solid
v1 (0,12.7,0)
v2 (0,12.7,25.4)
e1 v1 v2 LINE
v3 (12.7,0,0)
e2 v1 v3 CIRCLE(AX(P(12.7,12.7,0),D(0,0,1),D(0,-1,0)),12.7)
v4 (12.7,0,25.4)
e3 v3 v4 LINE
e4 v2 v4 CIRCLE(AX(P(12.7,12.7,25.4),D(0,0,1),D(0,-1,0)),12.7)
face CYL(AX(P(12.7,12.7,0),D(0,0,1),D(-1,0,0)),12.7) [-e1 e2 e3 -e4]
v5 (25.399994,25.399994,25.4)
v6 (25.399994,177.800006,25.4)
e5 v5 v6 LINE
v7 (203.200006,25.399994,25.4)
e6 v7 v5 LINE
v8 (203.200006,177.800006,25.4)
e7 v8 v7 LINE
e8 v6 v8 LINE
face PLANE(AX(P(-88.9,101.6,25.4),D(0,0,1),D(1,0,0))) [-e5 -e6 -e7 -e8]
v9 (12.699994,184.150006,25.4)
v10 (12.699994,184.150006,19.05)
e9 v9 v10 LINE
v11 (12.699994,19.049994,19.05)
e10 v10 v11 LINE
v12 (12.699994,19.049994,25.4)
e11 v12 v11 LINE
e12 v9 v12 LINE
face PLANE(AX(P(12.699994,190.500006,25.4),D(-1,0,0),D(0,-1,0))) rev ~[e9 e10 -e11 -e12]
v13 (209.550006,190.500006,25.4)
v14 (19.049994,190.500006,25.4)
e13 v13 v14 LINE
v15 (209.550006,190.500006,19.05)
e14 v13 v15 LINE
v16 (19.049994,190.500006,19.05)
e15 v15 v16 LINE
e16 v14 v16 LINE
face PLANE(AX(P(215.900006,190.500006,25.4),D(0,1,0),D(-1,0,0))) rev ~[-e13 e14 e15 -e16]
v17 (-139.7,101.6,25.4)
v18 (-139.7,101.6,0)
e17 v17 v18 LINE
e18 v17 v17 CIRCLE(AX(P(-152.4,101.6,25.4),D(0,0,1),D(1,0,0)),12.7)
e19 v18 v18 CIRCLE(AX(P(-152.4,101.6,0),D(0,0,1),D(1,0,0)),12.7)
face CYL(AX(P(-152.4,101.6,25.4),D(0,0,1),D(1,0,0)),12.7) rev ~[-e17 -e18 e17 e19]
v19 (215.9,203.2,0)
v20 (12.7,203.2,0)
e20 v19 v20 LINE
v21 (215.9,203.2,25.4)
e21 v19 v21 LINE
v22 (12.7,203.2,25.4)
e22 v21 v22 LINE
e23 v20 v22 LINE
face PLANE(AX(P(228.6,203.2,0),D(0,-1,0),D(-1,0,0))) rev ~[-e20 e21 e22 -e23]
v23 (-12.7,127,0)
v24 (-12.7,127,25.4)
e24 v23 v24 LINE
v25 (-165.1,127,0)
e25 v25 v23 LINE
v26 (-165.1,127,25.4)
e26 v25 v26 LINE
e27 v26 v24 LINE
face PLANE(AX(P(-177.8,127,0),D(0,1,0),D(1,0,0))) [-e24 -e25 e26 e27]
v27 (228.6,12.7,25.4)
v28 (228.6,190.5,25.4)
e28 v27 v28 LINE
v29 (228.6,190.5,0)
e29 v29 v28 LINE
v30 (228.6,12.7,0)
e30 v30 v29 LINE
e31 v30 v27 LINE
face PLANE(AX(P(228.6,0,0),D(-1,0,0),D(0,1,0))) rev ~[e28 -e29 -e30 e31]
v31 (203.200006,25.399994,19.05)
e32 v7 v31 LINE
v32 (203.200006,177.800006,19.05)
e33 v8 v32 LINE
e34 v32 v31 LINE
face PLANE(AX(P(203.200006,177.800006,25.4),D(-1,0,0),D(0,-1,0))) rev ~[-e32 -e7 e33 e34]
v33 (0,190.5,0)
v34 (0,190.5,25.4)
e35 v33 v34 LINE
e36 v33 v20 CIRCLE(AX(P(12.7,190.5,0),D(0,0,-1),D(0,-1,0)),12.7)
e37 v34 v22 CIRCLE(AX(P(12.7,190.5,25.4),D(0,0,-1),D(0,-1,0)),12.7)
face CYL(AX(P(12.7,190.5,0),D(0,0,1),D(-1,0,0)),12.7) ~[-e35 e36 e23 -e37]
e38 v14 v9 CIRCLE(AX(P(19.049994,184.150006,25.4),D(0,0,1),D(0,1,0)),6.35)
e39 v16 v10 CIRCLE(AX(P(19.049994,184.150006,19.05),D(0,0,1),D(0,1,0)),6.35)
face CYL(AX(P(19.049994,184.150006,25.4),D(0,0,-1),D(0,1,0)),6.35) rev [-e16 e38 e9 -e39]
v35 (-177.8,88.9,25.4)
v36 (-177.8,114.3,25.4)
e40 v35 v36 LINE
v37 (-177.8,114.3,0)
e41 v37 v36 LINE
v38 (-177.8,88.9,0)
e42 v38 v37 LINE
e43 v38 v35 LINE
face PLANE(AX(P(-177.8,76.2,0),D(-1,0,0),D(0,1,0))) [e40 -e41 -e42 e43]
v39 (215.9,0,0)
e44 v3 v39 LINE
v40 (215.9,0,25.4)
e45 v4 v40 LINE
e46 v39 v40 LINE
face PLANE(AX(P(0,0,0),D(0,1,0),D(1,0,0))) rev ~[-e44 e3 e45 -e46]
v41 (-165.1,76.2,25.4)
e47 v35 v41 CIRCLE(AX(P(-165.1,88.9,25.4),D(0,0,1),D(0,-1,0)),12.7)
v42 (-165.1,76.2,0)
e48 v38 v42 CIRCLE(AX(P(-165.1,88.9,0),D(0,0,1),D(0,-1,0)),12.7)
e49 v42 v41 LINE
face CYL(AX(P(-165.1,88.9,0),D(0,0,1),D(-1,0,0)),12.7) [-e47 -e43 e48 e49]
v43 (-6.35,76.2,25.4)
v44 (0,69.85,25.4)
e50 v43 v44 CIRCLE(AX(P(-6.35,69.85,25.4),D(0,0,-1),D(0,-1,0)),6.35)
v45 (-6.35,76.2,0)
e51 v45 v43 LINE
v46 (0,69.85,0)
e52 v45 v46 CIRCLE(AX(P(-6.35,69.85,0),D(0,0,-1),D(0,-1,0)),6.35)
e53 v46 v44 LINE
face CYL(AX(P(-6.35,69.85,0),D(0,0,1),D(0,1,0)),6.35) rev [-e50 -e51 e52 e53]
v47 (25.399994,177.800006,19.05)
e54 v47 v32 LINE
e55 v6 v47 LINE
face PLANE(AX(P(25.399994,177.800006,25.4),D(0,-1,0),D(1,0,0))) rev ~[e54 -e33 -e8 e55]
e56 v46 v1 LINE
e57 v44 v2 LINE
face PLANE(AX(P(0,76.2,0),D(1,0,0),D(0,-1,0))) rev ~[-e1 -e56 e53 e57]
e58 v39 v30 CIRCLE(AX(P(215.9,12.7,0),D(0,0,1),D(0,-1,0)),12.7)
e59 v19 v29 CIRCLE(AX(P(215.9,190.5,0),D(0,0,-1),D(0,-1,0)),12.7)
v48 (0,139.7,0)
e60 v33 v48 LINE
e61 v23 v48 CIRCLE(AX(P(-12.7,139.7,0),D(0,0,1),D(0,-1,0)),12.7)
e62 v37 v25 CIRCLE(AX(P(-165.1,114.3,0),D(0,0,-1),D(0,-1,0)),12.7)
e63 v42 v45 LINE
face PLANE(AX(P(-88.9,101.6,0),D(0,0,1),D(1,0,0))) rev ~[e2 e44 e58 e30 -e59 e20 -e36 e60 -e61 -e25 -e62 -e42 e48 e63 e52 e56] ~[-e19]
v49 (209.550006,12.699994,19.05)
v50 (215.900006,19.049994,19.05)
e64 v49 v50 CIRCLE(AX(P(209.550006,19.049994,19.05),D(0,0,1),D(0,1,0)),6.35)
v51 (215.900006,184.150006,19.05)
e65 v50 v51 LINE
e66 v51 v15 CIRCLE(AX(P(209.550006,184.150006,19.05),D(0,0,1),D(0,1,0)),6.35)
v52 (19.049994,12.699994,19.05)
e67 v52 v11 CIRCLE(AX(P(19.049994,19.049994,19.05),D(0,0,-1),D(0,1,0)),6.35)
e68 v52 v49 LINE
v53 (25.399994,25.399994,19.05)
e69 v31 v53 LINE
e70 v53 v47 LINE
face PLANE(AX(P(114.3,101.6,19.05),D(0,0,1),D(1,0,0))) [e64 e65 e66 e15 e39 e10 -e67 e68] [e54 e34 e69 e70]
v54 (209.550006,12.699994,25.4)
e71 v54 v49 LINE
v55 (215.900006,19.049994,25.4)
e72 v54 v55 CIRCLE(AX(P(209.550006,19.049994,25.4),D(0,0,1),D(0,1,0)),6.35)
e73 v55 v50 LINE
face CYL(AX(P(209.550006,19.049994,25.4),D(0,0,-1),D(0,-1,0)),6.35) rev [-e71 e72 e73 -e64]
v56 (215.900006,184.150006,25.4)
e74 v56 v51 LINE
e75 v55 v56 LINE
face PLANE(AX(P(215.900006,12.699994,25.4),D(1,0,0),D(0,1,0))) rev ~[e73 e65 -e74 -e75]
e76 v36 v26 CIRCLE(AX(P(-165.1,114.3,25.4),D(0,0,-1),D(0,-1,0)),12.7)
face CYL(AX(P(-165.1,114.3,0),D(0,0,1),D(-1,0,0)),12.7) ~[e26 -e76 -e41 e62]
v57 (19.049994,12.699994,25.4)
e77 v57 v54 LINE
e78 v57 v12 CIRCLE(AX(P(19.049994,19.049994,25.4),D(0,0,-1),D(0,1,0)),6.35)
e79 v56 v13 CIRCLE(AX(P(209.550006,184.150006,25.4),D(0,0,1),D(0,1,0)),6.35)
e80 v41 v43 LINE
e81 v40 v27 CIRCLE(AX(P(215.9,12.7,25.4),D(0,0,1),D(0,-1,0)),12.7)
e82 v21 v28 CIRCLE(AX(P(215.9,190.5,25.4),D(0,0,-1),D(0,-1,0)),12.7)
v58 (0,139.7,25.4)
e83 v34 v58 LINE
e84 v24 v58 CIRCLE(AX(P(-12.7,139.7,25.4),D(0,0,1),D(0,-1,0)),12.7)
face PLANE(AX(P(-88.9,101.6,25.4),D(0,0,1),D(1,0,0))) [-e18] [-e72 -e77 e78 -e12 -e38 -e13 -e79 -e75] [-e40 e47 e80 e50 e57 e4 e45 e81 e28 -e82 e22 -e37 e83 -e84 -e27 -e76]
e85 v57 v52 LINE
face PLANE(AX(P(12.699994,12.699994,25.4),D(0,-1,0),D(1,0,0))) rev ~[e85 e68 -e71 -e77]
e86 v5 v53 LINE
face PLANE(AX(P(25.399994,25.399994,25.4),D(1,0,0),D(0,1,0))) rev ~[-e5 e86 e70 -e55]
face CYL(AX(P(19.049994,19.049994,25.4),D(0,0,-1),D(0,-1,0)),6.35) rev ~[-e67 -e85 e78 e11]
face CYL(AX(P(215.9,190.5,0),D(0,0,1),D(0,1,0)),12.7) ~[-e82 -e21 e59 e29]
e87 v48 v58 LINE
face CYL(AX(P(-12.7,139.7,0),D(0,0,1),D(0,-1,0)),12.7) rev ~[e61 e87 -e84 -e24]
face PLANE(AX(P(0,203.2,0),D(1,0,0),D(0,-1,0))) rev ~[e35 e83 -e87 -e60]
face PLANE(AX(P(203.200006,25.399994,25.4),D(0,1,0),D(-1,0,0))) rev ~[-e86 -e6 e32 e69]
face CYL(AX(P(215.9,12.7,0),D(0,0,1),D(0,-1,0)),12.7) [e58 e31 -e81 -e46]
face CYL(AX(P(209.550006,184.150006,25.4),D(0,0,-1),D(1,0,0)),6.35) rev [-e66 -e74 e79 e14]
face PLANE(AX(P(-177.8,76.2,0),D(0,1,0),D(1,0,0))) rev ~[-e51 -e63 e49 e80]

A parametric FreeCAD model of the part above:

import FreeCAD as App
import Part
import Sketcher
from FreeCAD import Vector
Q = App.Units.Quantity


def edges_at(feature, points):
    """Names of the edges that pass closest to the given points."""
    edges = feature.Shape.Edges
    near = lambda p: min(range(len(edges)), key=lambda i: edges[i].distToShape(Part.Vertex(*p))[0])
    return sorted({f"Edge{near(p) + 1}" for p in points})

doc = App.newDocument("Part")
body = doc.addObject("PartDesign::Body", "Body")

sketch1 = body.newObject("Sketcher::SketchObject", "Sketch")
sketch1.AttachmentSupport = (doc.getObject("XY_Plane"), [""])
sketch1.MapMode = "FlatFace"
sketch1.addGeometry([
    Part.LineSegment(Vector(-178, 127, 0), Vector(-178, 76, 0)),
    Part.LineSegment(Vector(-178, 76, 0), Vector(0, 76, 0)),
    Part.LineSegment(Vector(0, 76, 0), Vector(0, 0, 0)),
    Part.LineSegment(Vector(0, 0, 0), Vector(229, 0, 0)),
    Part.LineSegment(Vector(229, 0, 0), Vector(229, 203, 0)),
    Part.LineSegment(Vector(229, 203, 0), Vector(0, 203, 0)),
    Part.LineSegment(Vector(0, 203, 0), Vector(0, 127, 0)),
    Part.LineSegment(Vector(0, 127, 0), Vector(-178, 127, 0)),
], False)
sketch1.addConstraint([
    Sketcher.Constraint("Coincident", 0, 2, 1, 1),
    Sketcher.Constraint("Coincident", 1, 2, 2, 1),
    Sketcher.Constraint("Coincident", 2, 2, 3, 1),
    Sketcher.Constraint("Coincident", 3, 2, 4, 1),
    Sketcher.Constraint("Coincident", 4, 2, 5, 1),
    Sketcher.Constraint("Coincident", 5, 2, 6, 1),
    Sketcher.Constraint("Coincident", 6, 2, 7, 1),
    Sketcher.Constraint("Coincident", 7, 2, 0, 1),
    Sketcher.Constraint("Vertical", 0),
    Sketcher.Constraint("Horizontal", 1),
    Sketcher.Constraint("Vertical", 2),
    Sketcher.Constraint("Horizontal", 3),
    Sketcher.Constraint("Vertical", 4),
    Sketcher.Constraint("Horizontal", 5),
    Sketcher.Constraint("Vertical", 6),
    Sketcher.Constraint("Horizontal", 7),
    Sketcher.Constraint("Coincident", 2, 2, -1, 1),
    Sketcher.Constraint("PointOnObject", 5, 2, -2),
    Sketcher.Constraint("Equal", 2, 6),
    Sketcher.Constraint("DistanceX", 1, 1, 1, 2, Q("7 in")),
    Sketcher.Constraint("DistanceX", 3, 1, 3, 2, Q("9 in")),
    Sketcher.Constraint("DistanceY", 0, 2, 0, 1, Q("2 in")),
    Sketcher.Constraint("DistanceY", 2, 2, 2, 1, Q("3 in")),
])
pad1 = body.newObject("PartDesign::Pad", "Pad")
pad1.Profile = sketch1
pad1.Length = Q("1 in")

sketch2 = body.newObject("Sketcher::SketchObject", "Sketch001")
sketch2.AttachmentSupport = (doc.getObject("XY_Plane"), [""])
sketch2.MapMode = "FlatFace"
sketch2.AttachmentOffset = App.Placement(Vector(0, 0, 1 * 25.4), App.Rotation())
sketch2.addGeometry(Part.Circle(Vector(-152, 102, 0), Vector(0, 0, 1), 13), False)
sketch2.addConstraint([
    Sketcher.Constraint("Diameter", 0, Q("1 in")),
    Sketcher.Constraint("DistanceX", 0, 3, -1, 1, Q("6 in")),
    Sketcher.Constraint("DistanceY", -1, 1, 0, 3, Q("4 in")),
])
pocket1 = body.newObject("PartDesign::Pocket", "Pocket")
pocket1.Profile = sketch2
pocket1.Length = Q("1 in")

sketch3 = body.newObject("Sketcher::SketchObject", "Sketch002")
sketch3.AttachmentSupport = (doc.getObject("XY_Plane"), [""])
sketch3.MapMode = "FlatFace"
sketch3.AttachmentOffset = App.Placement(Vector(0, 0, 1 * 25.4), App.Rotation())
sketch3.addGeometry([
    Part.LineSegment(Vector(13, 13, 0), Vector(216, 13, 0)),
    Part.LineSegment(Vector(216, 13, 0), Vector(216, 191, 0)),
    Part.LineSegment(Vector(216, 191, 0), Vector(13, 191, 0)),
    Part.LineSegment(Vector(13, 191, 0), Vector(13, 13, 0)),
    Part.LineSegment(Vector(25, 25, 0), Vector(25, 178, 0)),
    Part.LineSegment(Vector(25, 178, 0), Vector(203, 178, 0)),
    Part.LineSegment(Vector(203, 178, 0), Vector(203, 25, 0)),
    Part.LineSegment(Vector(203, 25, 0), Vector(25, 25, 0)),
], False)
sketch3.addConstraint([
    Sketcher.Constraint("Coincident", 0, 2, 1, 1),
    Sketcher.Constraint("Coincident", 1, 2, 2, 1),
    Sketcher.Constraint("Coincident", 2, 2, 3, 1),
    Sketcher.Constraint("Coincident", 3, 2, 0, 1),
    Sketcher.Constraint("Coincident", 4, 2, 5, 1),
    Sketcher.Constraint("Coincident", 5, 2, 6, 1),
    Sketcher.Constraint("Coincident", 6, 2, 7, 1),
    Sketcher.Constraint("Coincident", 7, 2, 4, 1),
    Sketcher.Constraint("Horizontal", 0),
    Sketcher.Constraint("Vertical", 1),
    Sketcher.Constraint("Horizontal", 2),
    Sketcher.Constraint("Vertical", 3),
    Sketcher.Constraint("Vertical", 4),
    Sketcher.Constraint("Horizontal", 5),
    Sketcher.Constraint("Vertical", 6),
    Sketcher.Constraint("Horizontal", 7),
    Sketcher.Constraint("Equal", 7, 1),
    Sketcher.Constraint("DistanceX", 2, 2, 4, 2, Q("0.5 in")),
    Sketcher.Constraint("DistanceY", 4, 2, 2, 2, Q("0.5 in")),
    Sketcher.Constraint("DistanceX", 5, 2, 1, 2, Q("0.5 in")),
    Sketcher.Constraint("DistanceY", 0, 2, 6, 2, Q("0.5 in")),
    Sketcher.Constraint("DistanceX", 0, 1, 0, 2, Q("203.200012 mm")),
    Sketcher.Constraint("DistanceX", -1, 1, 0, 2, Q("215.900006 mm")),
    Sketcher.Constraint("DistanceY", -1, 1, 0, 2, Q("12.699994 mm")),
])
pocket2 = body.newObject("PartDesign::Pocket", "Pocket001")
pocket2.Profile = sketch3
pocket2.Length = Q("0.25 in")
doc.recompute()

fillet = body.newObject("PartDesign::Fillet", "Fillet")
fillet.Base = (pocket2, edges_at(pocket2, [
    (12.7, 190.5, 22.225),
    (215.9, 190.5, 22.225),
    (12.7, 12.7, 22.225),
    (215.9, 12.7, 22.225),
]))
fillet.Radius = Q("0.25 in")
doc.recompute()

fillet2 = body.newObject("PartDesign::Fillet", "Fillet001")
fillet2.Base = (fillet, edges_at(fillet, [
    (0, 203.2, 12.7),
    (0, 127, 12.7),
    (-177.8, 127, 12.7),
    (-177.8, 76.2, 12.7),
    (228.6, 203.2, 12.7),
    (228.6, 0, 12.7),
    (0, 0, 12.7),
]))
fillet2.Radius = Q("0.5 in")
doc.recompute()

fillet3 = body.newObject("PartDesign::Fillet", "Fillet002")
fillet3.Base = (fillet2, edges_at(fillet2, [(0, 76.2, 12.7)]))
fillet3.Radius = Q("0.25 in")

doc.recompute()
